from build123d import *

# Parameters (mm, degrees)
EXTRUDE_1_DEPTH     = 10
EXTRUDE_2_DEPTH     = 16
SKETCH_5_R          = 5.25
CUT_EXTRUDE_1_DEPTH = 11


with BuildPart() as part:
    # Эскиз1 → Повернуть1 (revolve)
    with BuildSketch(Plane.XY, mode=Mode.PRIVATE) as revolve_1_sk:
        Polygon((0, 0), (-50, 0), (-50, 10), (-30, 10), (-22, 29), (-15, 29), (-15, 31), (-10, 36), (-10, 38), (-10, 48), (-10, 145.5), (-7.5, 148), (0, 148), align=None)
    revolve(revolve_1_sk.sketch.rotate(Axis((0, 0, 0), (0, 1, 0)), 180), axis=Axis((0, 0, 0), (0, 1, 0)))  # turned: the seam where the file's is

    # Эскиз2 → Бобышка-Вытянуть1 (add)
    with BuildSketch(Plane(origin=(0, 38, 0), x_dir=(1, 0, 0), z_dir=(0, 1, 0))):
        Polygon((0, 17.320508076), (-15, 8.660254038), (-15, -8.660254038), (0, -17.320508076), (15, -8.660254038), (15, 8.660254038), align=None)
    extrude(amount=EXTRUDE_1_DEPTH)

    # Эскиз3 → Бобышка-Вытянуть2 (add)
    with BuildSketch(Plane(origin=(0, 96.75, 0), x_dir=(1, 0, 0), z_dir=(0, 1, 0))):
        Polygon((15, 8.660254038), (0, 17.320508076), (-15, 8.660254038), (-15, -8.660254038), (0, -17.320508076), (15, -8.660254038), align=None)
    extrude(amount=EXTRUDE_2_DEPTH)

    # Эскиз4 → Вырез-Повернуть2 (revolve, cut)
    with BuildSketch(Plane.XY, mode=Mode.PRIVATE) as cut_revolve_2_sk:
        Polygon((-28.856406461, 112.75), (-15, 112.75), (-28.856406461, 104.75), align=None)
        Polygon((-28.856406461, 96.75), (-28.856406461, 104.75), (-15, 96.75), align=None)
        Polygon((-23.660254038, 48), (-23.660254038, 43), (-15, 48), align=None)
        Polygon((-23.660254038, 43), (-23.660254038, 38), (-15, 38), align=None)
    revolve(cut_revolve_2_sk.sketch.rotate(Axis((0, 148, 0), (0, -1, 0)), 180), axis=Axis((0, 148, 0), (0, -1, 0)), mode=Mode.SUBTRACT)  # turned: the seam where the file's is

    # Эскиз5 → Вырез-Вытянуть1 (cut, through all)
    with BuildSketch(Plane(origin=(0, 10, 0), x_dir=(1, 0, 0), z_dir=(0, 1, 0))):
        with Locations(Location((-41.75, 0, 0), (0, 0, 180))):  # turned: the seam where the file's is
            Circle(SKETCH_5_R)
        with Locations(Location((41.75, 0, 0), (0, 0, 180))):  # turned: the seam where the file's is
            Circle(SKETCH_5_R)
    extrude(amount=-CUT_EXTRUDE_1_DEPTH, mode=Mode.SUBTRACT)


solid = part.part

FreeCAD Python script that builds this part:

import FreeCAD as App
import Part
import Sketcher

V = App.Vector
Q = App.Units.Quantity

doc = App.newDocument("Part")
body = doc.addObject("PartDesign::Body", "Body")

# Sketch on XY plane
sketch1 = body.newObject("Sketcher::SketchObject", "Sketch")
sketch1.AttachmentSupport = (doc.getObject("XY_Plane"), [""])
sketch1.MapMode = "FlatFace"
sketch1.addGeometry(Part.LineSegment(V(-50, 0, 0), V(0, 0, 0)), False)
sketch1.addGeometry(Part.LineSegment(V(0, 0, 0), V(0, 148, 0)), False)
sketch1.addGeometry(Part.LineSegment(V(0, 148, 0), V(-7.5, 148, 0)), False)
sketch1.addGeometry(Part.LineSegment(V(-7.5, 148, 0), V(-10, 145.5, 0)), False)
sketch1.addGeometry(Part.LineSegment(V(-10, 145.5, 0), V(-10, 36, 0)), False)
sketch1.addGeometry(Part.LineSegment(V(-10, 36, 0), V(-15, 31, 0)), False)
sketch1.addGeometry(Part.LineSegment(V(-15, 31, 0), V(-15, 29, 0)), False)
sketch1.addGeometry(Part.LineSegment(V(-15, 29, 0), V(-22, 29, 0)), False)
sketch1.addGeometry(Part.LineSegment(V(-22, 29, 0), V(-30, 10, 0)), False)
sketch1.addGeometry(Part.LineSegment(V(-30, 10, 0), V(-50, 10, 0)), False)
sketch1.addGeometry(Part.LineSegment(V(-50, 10, 0), V(-50, 0, 0)), False)
sketch1.addConstraint(Sketcher.Constraint("Coincident", 0, 2, 1, 1))
sketch1.addConstraint(Sketcher.Constraint("Coincident", 1, 2, 2, 1))
sketch1.addConstraint(Sketcher.Constraint("Coincident", 2, 2, 3, 1))
sketch1.addConstraint(Sketcher.Constraint("Coincident", 3, 2, 4, 1))
sketch1.addConstraint(Sketcher.Constraint("Coincident", 4, 2, 5, 1))
sketch1.addConstraint(Sketcher.Constraint("Coincident", 5, 2, 6, 1))
sketch1.addConstraint(Sketcher.Constraint("Coincident", 6, 2, 7, 1))
sketch1.addConstraint(Sketcher.Constraint("Coincident", 7, 2, 8, 1))
sketch1.addConstraint(Sketcher.Constraint("Coincident", 8, 2, 9, 1))
sketch1.addConstraint(Sketcher.Constraint("Coincident", 9, 2, 10, 1))
sketch1.addConstraint(Sketcher.Constraint("Coincident", 10, 2, 0, 1))
sketch1.addConstraint(Sketcher.Constraint("Horizontal", 0))
sketch1.addConstraint(Sketcher.Constraint("Vertical", 1))
sketch1.addConstraint(Sketcher.Constraint("Horizontal", 2))
sketch1.addConstraint(Sketcher.Constraint("Vertical", 4))
sketch1.addConstraint(Sketcher.Constraint("Vertical", 6))
sketch1.addConstraint(Sketcher.Constraint("Horizontal", 7))
sketch1.addConstraint(Sketcher.Constraint("Horizontal", 9))
sketch1.addConstraint(Sketcher.Constraint("Vertical", 10))
sketch1.addConstraint(Sketcher.Constraint("Coincident", 0, 2, -1, 1))
sketch1.addConstraint(Sketcher.Constraint("Parallel", 3, 5))
sketch1.addConstraint(Sketcher.Constraint("DistanceX", 0, 1, 0, 2, Q("50 mm")))
sketch1.addConstraint(Sketcher.Constraint("DistanceX", 7, 2, 7, 1, Q("7 mm")))
sketch1.addConstraint(Sketcher.Constraint("DistanceX", 9, 2, 9, 1, Q("20 mm")))
sketch1.addConstraint(Sketcher.Constraint("DistanceY", 1, 1, 1, 2, Q("148 mm")))
sketch1.addConstraint(Sketcher.Constraint("DistanceY", 6, 2, 6, 1, Q("2 mm")))
sketch1.addConstraint(Sketcher.Constraint("DistanceY", 10, 2, 10, 1, Q("10 mm")))
sketch1.addConstraint(Sketcher.Constraint("Angle", 3, Q("-135 deg")))
sketch1.addConstraint(Sketcher.Constraint("DistanceX", 2, 2, 2, 1, Q("7.5 mm")))
sketch1.addConstraint(Sketcher.Constraint("DistanceY", 4, 2, 4, 1, Q("109.5 mm")))
sketch1.addConstraint(Sketcher.Constraint("DistanceX", 3, 2, -1, 1, Q("10 mm")))
sketch1.addConstraint(Sketcher.Constraint("DistanceX", 5, 2, -1, 1, Q("15 mm")))
revolution = body.newObject("PartDesign::Revolution", "Revolution")
revolution.Profile = sketch1
revolution.ReferenceAxis = (sketch1, ["V_Axis"])
revolution.Angle = 360

# Sketch on XZ plane
sketch2 = body.newObject("Sketcher::SketchObject", "Sketch001")
sketch2.AttachmentSupport = (doc.getObject("XZ_Plane"), [""])
sketch2.MapMode = "FlatFace"
sketch2.AttachmentOffset = App.Placement(V(0, 0, -38), App.Rotation())
sketch2.addGeometry(Part.LineSegment(V(0, -17, 0), V(-15, -9, 0)), False)
sketch2.addGeometry(Part.LineSegment(V(-15, -9, 0), V(-15, 9, 0)), False)
sketch2.addGeometry(Part.LineSegment(V(-15, 9, 0), V(0, 17, 0)), False)
sketch2.addGeometry(Part.LineSegment(V(0, 17, 0), V(15, 9, 0)), False)
sketch2.addGeometry(Part.LineSegment(V(15, 9, 0), V(15, -9, 0)), False)
sketch2.addGeometry(Part.LineSegment(V(15, -9, 0), V(0, -17, 0)), False)
sketch2.addConstraint(Sketcher.Constraint("Coincident", 0, 2, 1, 1))
sketch2.addConstraint(Sketcher.Constraint("Coincident", 1, 2, 2, 1))
sketch2.addConstraint(Sketcher.Constraint("Coincident", 2, 2, 3, 1))
sketch2.addConstraint(Sketcher.Constraint("Coincident", 3, 2, 4, 1))
sketch2.addConstraint(Sketcher.Constraint("Coincident", 4, 2, 5, 1))
sketch2.addConstraint(Sketcher.Constraint("Coincident", 5, 2, 0, 1))
sketch2.addConstraint(Sketcher.Constraint("Vertical", 1))
sketch2.addConstraint(Sketcher.Constraint("Vertical", 4))
sketch2.addConstraint(Sketcher.Constraint("Symmetric", 0, 2, 3, 2, -1, 1))
sketch2.addConstraint(Sketcher.Constraint("Symmetric", 2, 2, 5, 2, -1, 1))
sketch2.addConstraint(Sketcher.Constraint("PointOnObject", 2, 2, -2))
sketch2.addConstraint(Sketcher.Constraint("Parallel", 2, 5))
sketch2.addConstraint(Sketcher.Constraint("Horizontal", 1, 2, 3, 2))
sketch2.addConstraint(Sketcher.Constraint("Angle", 0, Q("150 deg")))
sketch2.addConstraint(Sketcher.Constraint("DistanceX", 0, 2, -1, 1, Q("15 mm")))
sketch2.addConstraint(Sketcher.Constraint("DistanceY", 1, 1, 1, 2, Q("17.320508 mm")))
pad1 = body.newObject("PartDesign::Pad", "Pad")
pad1.Profile = sketch2
pad1.Length = 10
pad1.Reversed = True

# Sketch on XZ plane
sketch3 = body.newObject("Sketcher::SketchObject", "Sketch002")
sketch3.AttachmentSupport = (doc.getObject("XZ_Plane"), [""])
sketch3.MapMode = "FlatFace"
sketch3.AttachmentOffset = App.Placement(V(0, 0, -96.75), App.Rotation())
sketch3.addGeometry(Part.LineSegment(V(15, -9, 0), V(0, -17, 0)), False)
sketch3.addGeometry(Part.LineSegment(V(0, -17, 0), V(-15, -9, 0)), False)
sketch3.addGeometry(Part.LineSegment(V(-15, -9, 0), V(-15, 9, 0)), False)
sketch3.addGeometry(Part.LineSegment(V(-15, 9, 0), V(0, 17, 0)), False)
sketch3.addGeometry(Part.LineSegment(V(0, 17, 0), V(15, 9, 0)), False)
sketch3.addGeometry(Part.LineSegment(V(15, 9, 0), V(15, -9, 0)), False)
sketch3.addConstraint(Sketcher.Constraint("Coincident", 0, 2, 1, 1))
sketch3.addConstraint(Sketcher.Constraint("Coincident", 1, 2, 2, 1))
sketch3.addConstraint(Sketcher.Constraint("Coincident", 2, 2, 3, 1))
sketch3.addConstraint(Sketcher.Constraint("Coincident", 3, 2, 4, 1))
sketch3.addConstraint(Sketcher.Constraint("Coincident", 4, 2, 5, 1))
sketch3.addConstraint(Sketcher.Constraint("Coincident", 5, 2, 0, 1))
sketch3.addConstraint(Sketcher.Constraint("Vertical", 2))
sketch3.addConstraint(Sketcher.Constraint("Vertical", 5))
sketch3.addConstraint(Sketcher.Constraint("Symmetric", 0, 2, 3, 2, -1, 1))
sketch3.addConstraint(Sketcher.Constraint("Symmetric", 1, 2, 4, 2, -1, 1))
sketch3.addConstraint(Sketcher.Constraint("PointOnObject", 0, 2, -2))
sketch3.addConstraint(Sketcher.Constraint("Parallel", 0, 3))
sketch3.addConstraint(Sketcher.Constraint("Horizontal", 2, 2, 4, 2))
sketch3.addConstraint(Sketcher.Constraint("Angle", 0, Q("-150 deg")))
sketch3.addConstraint(Sketcher.Constraint("DistanceX", 1, 2, -1, 1, Q("15 mm")))
sketch3.addConstraint(Sketcher.Constraint("DistanceY", 2, 1, 2, 2, Q("17.320508 mm")))
pad2 = body.newObject("PartDesign::Pad", "Pad001")
pad2.Profile = sketch3
pad2.Length = 16
pad2.Reversed = True

# Sketch on XY plane
sketch4 = body.newObject("Sketcher::SketchObject", "Sketch003")
sketch4.AttachmentSupport = (doc.getObject("XY_Plane"), [""])
sketch4.MapMode = "FlatFace"
sketch4.addGeometry(Part.LineSegment(V(-15, 113, 0), V(-29, 113, 0)), False)
sketch4.addGeometry(Part.LineSegment(V(-29, 113, 0), V(-29, 105, 0)), False)
sketch4.addGeometry(Part.LineSegment(V(-29, 105, 0), V(-15, 113, 0)), False)
sketch4.addGeometry(Part.LineSegment(V(-29, 105, 0), V(-29, 97, 0)), False)
sketch4.addGeometry(Part.LineSegment(V(-29, 97, 0), V(-15, 97, 0)), False)
sketch4.addGeometry(Part.LineSegment(V(-15, 97, 0), V(-29, 105, 0)), False)
sketch4.addGeometry(Part.LineSegment(V(-24, 48, 0), V(-24, 43, 0)), False)
sketch4.addGeometry(Part.LineSegment(V(-24, 43, 0), V(-15, 48, 0)), False)
sketch4.addGeometry(Part.LineSegment(V(-15, 48, 0), V(-24, 48, 0)), False)
sketch4.addGeometry(Part.LineSegment(V(-24, 43, 0), V(-24, 38, 0)), False)
sketch4.addGeometry(Part.LineSegment(V(-24, 38, 0), V(-15, 38, 0)), False)
sketch4.addGeometry(Part.LineSegment(V(-15, 38, 0), V(-24, 43, 0)), False)
sketch4.addConstraint(Sketcher.Constraint("Coincident", 0, 2, 1, 1))
sketch4.addConstraint(Sketcher.Constraint("Coincident", 1, 2, 2, 1))
sketch4.addConstraint(Sketcher.Constraint("Coincident", 2, 2, 0, 1))
sketch4.addConstraint(Sketcher.Constraint("Coincident", 3, 2, 4, 1))
sketch4.addConstraint(Sketcher.Constraint("Coincident", 4, 2, 5, 1))
sketch4.addConstraint(Sketcher.Constraint("Coincident", 5, 2, 3, 1))
sketch4.addConstraint(Sketcher.Constraint("Coincident", 6, 2, 7, 1))
sketch4.addConstraint(Sketcher.Constraint("Coincident", 7, 2, 8, 1))
sketch4.addConstraint(Sketcher.Constraint("Coincident", 8, 2, 6, 1))
sketch4.addConstraint(Sketcher.Constraint("Coincident", 9, 2, 10, 1))
sketch4.addConstraint(Sketcher.Constraint("Coincident", 10, 2, 11, 1))
sketch4.addConstraint(Sketcher.Constraint("Coincident", 11, 2, 9, 1))
sketch4.addConstraint(Sketcher.Constraint("Horizontal", 0))
sketch4.addConstraint(Sketcher.Constraint("Vertical", 1))
sketch4.addConstraint(Sketcher.Constraint("Vertical", 3))
sketch4.addConstraint(Sketcher.Constraint("Horizontal", 4))
sketch4.addConstraint(Sketcher.Constraint("Vertical", 6))
sketch4.addConstraint(Sketcher.Constraint("Horizontal", 8))
sketch4.addConstraint(Sketcher.Constraint("Vertical", 9))
sketch4.addConstraint(Sketcher.Constraint("Horizontal", 10))
sketch4.addConstraint(Sketcher.Constraint("Coincident", 5, 2, 1, 2))
sketch4.addConstraint(Sketcher.Constraint("Coincident", 11, 2, 6, 2))
sketch4.addConstraint(Sketcher.Constraint("Parallel", 2, 7))
sketch4.addConstraint(Sketcher.Constraint("Parallel", 5, 11))
sketch4.addConstraint(Sketcher.Constraint("Vertical", 2, 2, 4, 2))
sketch4.addConstraint(Sketcher.Constraint("Vertical", 4, 2, 7, 2))
sketch4.addConstraint(Sketcher.Constraint("Vertical", 7, 2, 10, 2))
sketch4.addConstraint(Sketcher.Constraint("Equal", 1, 3))
sketch4.addConstraint(Sketcher.Constraint("DistanceY", 1, 2, 1, 1, Q("8 mm")))
sketch4.addConstraint(Sketcher.Constraint("DistanceY", 6, 2, 6, 1, Q("5 mm")))
sketch4.addConstraint(Sketcher.Constraint("Angle", 2, Q("30 deg")))
sketch4.addConstraint(Sketcher.Constraint("DistanceX", 2, 2, -1, 1, Q("15 mm")))
sketch4.addConstraint(Sketcher.Constraint("DistanceY", -1, 1, 6, 2, Q("43 mm")))
sketch4.addConstraint(Sketcher.Constraint("DistanceY", -1, 1, 0, 2, Q("112.75 mm")))
groove = body.newObject("PartDesign::Groove", "Groove")
groove.Profile = sketch4
groove.ReferenceAxis = (sketch4, ["V_Axis"])
groove.Angle = 360

# Sketch on XZ plane
sketch5 = body.newObject("Sketcher::SketchObject", "Sketch004")
sketch5.AttachmentSupport = (doc.getObject("XZ_Plane"), [""])
sketch5.MapMode = "FlatFace"
sketch5.AttachmentOffset = App.Placement(V(0, 0, -10), App.Rotation())
sketch5.addGeometry(Part.Circle(V(-42, 0, 0), V(0, 0, 1), 5), False)
sketch5.addGeometry(Part.Circle(V(42, 0, 0), V(0, 0, 1), 5), False)
sketch5.addConstraint(Sketcher.Constraint("Equal", 0, 1))
sketch5.addConstraint(Sketcher.Constraint("Symmetric", 0, 3, 1, 3, -1, 1))
sketch5.addConstraint(Sketcher.Constraint("PointOnObject", 0, 3, -1))
sketch5.addConstraint(Sketcher.Constraint("Diameter", 0, Q("10.5 mm")))
sketch5.addConstraint(Sketcher.Constraint("DistanceX", 0, 3, 1, 3, Q("83.5 mm")))
pocket1 = body.newObject("PartDesign::Pocket", "Pocket")
pocket1.Profile = sketch5
pocket1.Type = "ThroughAll"
pocket1.Reversed = True

doc.recompute()
